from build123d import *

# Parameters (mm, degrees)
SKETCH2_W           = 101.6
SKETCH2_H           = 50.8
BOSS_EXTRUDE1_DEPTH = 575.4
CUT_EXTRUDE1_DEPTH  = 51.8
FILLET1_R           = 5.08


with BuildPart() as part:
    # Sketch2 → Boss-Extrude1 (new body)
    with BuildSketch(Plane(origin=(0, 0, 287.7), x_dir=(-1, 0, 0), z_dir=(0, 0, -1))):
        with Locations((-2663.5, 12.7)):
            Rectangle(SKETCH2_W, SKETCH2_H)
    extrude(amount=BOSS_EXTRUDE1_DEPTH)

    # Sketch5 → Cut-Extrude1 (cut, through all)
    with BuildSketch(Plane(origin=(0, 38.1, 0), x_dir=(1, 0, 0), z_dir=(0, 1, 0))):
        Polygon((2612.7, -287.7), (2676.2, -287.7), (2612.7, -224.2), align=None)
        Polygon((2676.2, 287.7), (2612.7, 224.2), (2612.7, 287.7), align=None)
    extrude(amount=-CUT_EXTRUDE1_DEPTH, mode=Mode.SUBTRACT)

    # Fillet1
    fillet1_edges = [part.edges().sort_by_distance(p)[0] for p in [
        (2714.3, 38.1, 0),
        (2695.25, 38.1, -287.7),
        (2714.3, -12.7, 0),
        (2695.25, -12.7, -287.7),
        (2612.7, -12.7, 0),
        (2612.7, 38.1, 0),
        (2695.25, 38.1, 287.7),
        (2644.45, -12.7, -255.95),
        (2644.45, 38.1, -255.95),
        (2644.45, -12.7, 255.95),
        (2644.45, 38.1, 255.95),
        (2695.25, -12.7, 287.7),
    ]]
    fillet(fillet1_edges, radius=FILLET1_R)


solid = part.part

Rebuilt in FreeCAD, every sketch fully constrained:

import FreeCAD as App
import Part
import Sketcher
Q = App.Units.Quantity


def edges_at(feature, points):
    """Names of the edges that pass closest to the given points."""
    edges = feature.Shape.Edges
    near = lambda p: min(range(len(edges)), key=lambda i: edges[i].distToShape(Part.Vertex(*p))[0])
    return sorted({f"Edge{near(p) + 1}" for p in points})

doc = App.newDocument("Part")
body = doc.addObject("PartDesign::Body", "Body")

sketch1 = body.newObject("Sketcher::SketchObject", "Sketch")
sketch1.AttachmentSupport = (doc.getObject("XY_Plane"), [""])
sketch1.MapMode = "FlatFace"
sketch1.AttachmentOffset = App.Placement(App.Vector(0, 0, 287.7), App.Rotation())
sketch1.addGeometry(Part.LineSegment(App.Vector(2714, 38, 0), App.Vector(2714, -13, 0)), False)
sketch1.addGeometry(Part.LineSegment(App.Vector(2714, -13, 0), App.Vector(2613, -13, 0)), False)
sketch1.addGeometry(Part.LineSegment(App.Vector(2613, -13, 0), App.Vector(2613, 38, 0)), False)
sketch1.addGeometry(Part.LineSegment(App.Vector(2613, 38, 0), App.Vector(2714, 38, 0)), False)
sketch1.addConstraint(Sketcher.Constraint("Coincident", 0, 2, 1, 1))
sketch1.addConstraint(Sketcher.Constraint("Coincident", 1, 2, 2, 1))
sketch1.addConstraint(Sketcher.Constraint("Coincident", 2, 2, 3, 1))
sketch1.addConstraint(Sketcher.Constraint("Coincident", 3, 2, 0, 1))
sketch1.addConstraint(Sketcher.Constraint("Vertical", 0))
sketch1.addConstraint(Sketcher.Constraint("Horizontal", 1))
sketch1.addConstraint(Sketcher.Constraint("Vertical", 2))
sketch1.addConstraint(Sketcher.Constraint("Horizontal", 3))
sketch1.addConstraint(Sketcher.Constraint("DistanceX", 1, 2, 1, 1, Q("4 in")))
sketch1.addConstraint(Sketcher.Constraint("DistanceY", 0, 2, 0, 1, Q("2 in")))
sketch1.addConstraint(Sketcher.Constraint("DistanceY", 0, 2, -1, 1, Q("0.5 in")))
sketch1.addConstraint(Sketcher.Constraint("DistanceX", -1, 1, 0, 2, Q("2714.3 mm")))
pad1 = body.newObject("PartDesign::Pad", "Pad")
pad1.Profile = sketch1
pad1.Length = 575.4
pad1.Reversed = True

sketch2 = body.newObject("Sketcher::SketchObject", "Sketch001")
sketch2.AttachmentSupport = (doc.getObject("XZ_Plane"), [""])
sketch2.MapMode = "FlatFace"
sketch2.AttachmentOffset = App.Placement(App.Vector(0, 0, -1.5 * 25.4), App.Rotation())
sketch2.addGeometry(Part.LineSegment(App.Vector(2613, 288, 0), App.Vector(2676, 288, 0)), False)
sketch2.addGeometry(Part.LineSegment(App.Vector(2676, 288, 0), App.Vector(2613, 224, 0)), False)
sketch2.addGeometry(Part.LineSegment(App.Vector(2613, 224, 0), App.Vector(2613, 288, 0)), False)
sketch2.addGeometry(Part.LineSegment(App.Vector(2613, -224, 0), App.Vector(2676, -288, 0)), False)
sketch2.addGeometry(Part.LineSegment(App.Vector(2676, -288, 0), App.Vector(2613, -288, 0)), False)
sketch2.addGeometry(Part.LineSegment(App.Vector(2613, -288, 0), App.Vector(2613, -224, 0)), False)
sketch2.addConstraint(Sketcher.Constraint("Coincident", 0, 2, 1, 1))
sketch2.addConstraint(Sketcher.Constraint("Coincident", 1, 2, 2, 1))
sketch2.addConstraint(Sketcher.Constraint("Coincident", 2, 2, 0, 1))
sketch2.addConstraint(Sketcher.Constraint("Coincident", 3, 2, 4, 1))
sketch2.addConstraint(Sketcher.Constraint("Coincident", 4, 2, 5, 1))
sketch2.addConstraint(Sketcher.Constraint("Coincident", 5, 2, 3, 1))
sketch2.addConstraint(Sketcher.Constraint("Horizontal", 0))
sketch2.addConstraint(Sketcher.Constraint("Vertical", 2))
sketch2.addConstraint(Sketcher.Constraint("Horizontal", 4))
sketch2.addConstraint(Sketcher.Constraint("Vertical", 5))
sketch2.addConstraint(Sketcher.Constraint("Symmetric", 0, 2, 3, 2, -1))
sketch2.addConstraint(Sketcher.Constraint("Symmetric", 1, 2, 5, 2, -1))
sketch2.addConstraint(Sketcher.Constraint("Perpendicular", 1, 3))
sketch2.addConstraint(Sketcher.Constraint("DistanceX", 0, 1, 0, 2, Q("2.5 in")))
sketch2.addConstraint(Sketcher.Constraint("DistanceX", -1, 1, 0, 2, Q("2676.2 mm")))
sketch2.addConstraint(Sketcher.Constraint("DistanceY", -1, 1, 0, 2, Q("287.7 mm")))
pocket1 = body.newObject("PartDesign::Pocket", "Pocket")
pocket1.Profile = sketch2
pocket1.Type = "ThroughAll"
pocket1.Reversed = True
doc.recompute()

fillet = body.newObject("PartDesign::Fillet", "Fillet")
fillet.Base = (pocket1, edges_at(pocket1, [
    (2714.3, 38.1, 0),
    (2695.25, 38.1, -287.7),
    (2714.3, -12.7, 0),
    (2695.25, -12.7, -287.7),
    (2612.7, -12.7, 0),
    (2612.7, 38.1, 0),
    (2695.25, 38.1, 287.7),
    (2644.45, -12.7, -255.95),
    (2644.45, 38.1, -255.95),
    (2644.45, -12.7, 255.95),
    (2644.45, 38.1, 255.95),
    (2695.25, -12.7, 287.7),
]))
fillet.Radius = Q("0.2 in")

doc.recompute()
